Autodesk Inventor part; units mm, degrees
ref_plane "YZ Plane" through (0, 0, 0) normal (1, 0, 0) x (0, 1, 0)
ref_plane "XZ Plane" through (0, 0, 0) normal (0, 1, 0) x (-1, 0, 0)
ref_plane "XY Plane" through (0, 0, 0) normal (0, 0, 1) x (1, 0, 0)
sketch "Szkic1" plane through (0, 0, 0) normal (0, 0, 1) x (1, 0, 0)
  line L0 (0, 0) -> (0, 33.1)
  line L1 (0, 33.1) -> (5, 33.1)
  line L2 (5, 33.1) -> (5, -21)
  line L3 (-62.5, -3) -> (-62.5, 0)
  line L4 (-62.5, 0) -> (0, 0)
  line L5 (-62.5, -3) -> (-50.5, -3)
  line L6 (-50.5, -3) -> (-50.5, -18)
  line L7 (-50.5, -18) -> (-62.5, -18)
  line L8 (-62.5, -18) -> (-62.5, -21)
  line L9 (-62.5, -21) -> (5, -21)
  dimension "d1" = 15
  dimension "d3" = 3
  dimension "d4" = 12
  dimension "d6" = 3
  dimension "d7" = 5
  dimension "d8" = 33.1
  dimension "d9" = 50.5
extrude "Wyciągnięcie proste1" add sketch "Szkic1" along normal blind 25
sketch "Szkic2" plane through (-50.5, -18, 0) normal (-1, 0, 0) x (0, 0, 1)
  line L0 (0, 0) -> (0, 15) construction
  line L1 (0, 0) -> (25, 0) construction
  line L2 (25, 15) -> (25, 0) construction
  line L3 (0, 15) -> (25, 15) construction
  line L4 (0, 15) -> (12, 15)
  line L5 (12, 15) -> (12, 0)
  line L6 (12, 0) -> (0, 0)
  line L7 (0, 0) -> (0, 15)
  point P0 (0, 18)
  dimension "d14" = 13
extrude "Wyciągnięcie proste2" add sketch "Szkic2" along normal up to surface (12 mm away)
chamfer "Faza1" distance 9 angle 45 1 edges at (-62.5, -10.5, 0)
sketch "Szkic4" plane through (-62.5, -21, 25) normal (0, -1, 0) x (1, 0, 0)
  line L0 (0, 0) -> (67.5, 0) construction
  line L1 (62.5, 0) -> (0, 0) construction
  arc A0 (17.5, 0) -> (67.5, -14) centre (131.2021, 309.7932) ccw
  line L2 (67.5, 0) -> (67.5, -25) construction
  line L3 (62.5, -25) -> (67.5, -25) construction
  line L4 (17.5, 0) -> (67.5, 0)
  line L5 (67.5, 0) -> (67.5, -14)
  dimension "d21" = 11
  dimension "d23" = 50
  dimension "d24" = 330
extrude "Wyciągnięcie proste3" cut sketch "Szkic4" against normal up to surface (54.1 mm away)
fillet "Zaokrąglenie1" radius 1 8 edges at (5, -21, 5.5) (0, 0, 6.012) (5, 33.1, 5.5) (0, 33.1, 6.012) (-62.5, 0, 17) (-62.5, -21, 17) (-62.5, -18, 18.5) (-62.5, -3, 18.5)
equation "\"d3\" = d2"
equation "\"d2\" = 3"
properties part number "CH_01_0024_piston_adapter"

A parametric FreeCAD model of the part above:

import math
import FreeCAD as App
import Part
import Sketcher
from FreeCAD import Vector


def edges_at(feature, points):
    """Names of the edges that pass closest to the given points."""
    edges = feature.Shape.Edges
    near = lambda p: min(range(len(edges)), key=lambda i: edges[i].distToShape(Part.Vertex(*p))[0])
    return sorted({f"Edge{near(p) + 1}" for p in points})


def add_polygon(sketch, points):
    """Adds a closed chain of lines whose ends are joined by coincident constraints."""
    first, n = sketch.GeometryCount, len(points)
    for a, b in zip(points, points[1:] + points[:1]):
        sketch.addGeometry(Part.LineSegment(App.Vector(*a, 0), App.Vector(*b, 0)), False)
    for i in range(n):
        sketch.addConstraint(Sketcher.Constraint("Coincident", first + i, 2, first + (i + 1) % n, 1))

doc = App.newDocument("Part")
params = doc.addObject("Spreadsheet::Sheet", "Params")
for row, (alias, value) in enumerate([
    ("sketch1_width", "12 mm"),
    ("sketch1_width2", "5 mm"),
    ("sketch1_height", "3 mm"),
    ("sketch1_height2", "15 mm"),
    ("sketch1_height3", "33.1 mm"),
    ("pad1_length", "25 mm"),
    ("sketch2_width", "15 mm"),
    ("sketch2_height", "12 mm"),
    ("pad2_length", "12 mm"),
    ("chamfer_size", "9 mm"),
    ("sketch3_radius", "330 mm"),
    ("sketch3_width", "50 mm"),
    ("sketch3_height", "14 mm"),
    ("pocket1_length", "54.1 mm"),
    ("fillet_radius", "1 mm"),
], start=1):
    params.set(f"A{row}", alias)
    params.set(f"B{row}", "=" + value)
    params.setAlias(f"B{row}", alias)

body = doc.addObject("PartDesign::Body", "Body")

# Sketch on XY plane
sketch1 = body.newObject("Sketcher::SketchObject", "Sketch")
sketch1.AttachmentSupport = (doc.getObject("XY_Plane"), [""])
sketch1.MapMode = "FlatFace"
add_polygon(sketch1, [(0, 33.1), (0, 0), (-62.5, 0), (-62.5, -3), (-50.5, -3), (-50.5, -18), (-62.5, -18), (-62.5, -21), (5, -21), (5, 33.1)])  # lines 0-9
sketch1.addConstraint([
    Sketcher.Constraint("Vertical", 0),
    Sketcher.Constraint("Horizontal", 1),
    Sketcher.Constraint("Vertical", 2),
    Sketcher.Constraint("Horizontal", 3),
    Sketcher.Constraint("Vertical", 4),
    Sketcher.Constraint("Horizontal", 5),
    Sketcher.Constraint("Vertical", 6),
    Sketcher.Constraint("Horizontal", 7),
    Sketcher.Constraint("Vertical", 8),
    Sketcher.Constraint("Horizontal", 9),
    Sketcher.Constraint("Coincident", 0, 2, -1, 1),
    Sketcher.Constraint("Vertical", 2, 2, 5, 2),
    Sketcher.Constraint("Equal", 2, 6),
    Sketcher.Constraint("DistanceX", 3, 1, 3, 2, 12.0),
    Sketcher.Constraint("DistanceX", 9, 2, 9, 1, 5.0),
    Sketcher.Constraint("DistanceY", 2, 2, 2, 1, 3.0),
    Sketcher.Constraint("DistanceY", 4, 2, 4, 1, 15.0),
    Sketcher.Constraint("DistanceY", 0, 2, 0, 1, 33.1),
    Sketcher.Constraint("DistanceX", 3, 2, -1, 1, 50.5),
])
sketch1.setExpression("Constraints[23]", "Params.sketch1_width")
sketch1.setExpression("Constraints[24]", "Params.sketch1_width2")
sketch1.setExpression("Constraints[25]", "Params.sketch1_height")
sketch1.setExpression("Constraints[26]", "Params.sketch1_height2")
sketch1.setExpression("Constraints[27]", "Params.sketch1_height3")
pad1 = body.newObject("PartDesign::Pad", "Pad")
pad1.Profile = sketch1
pad1.setExpression("Length", "Params.pad1_length")

# Sketch on YZ plane
sketch2 = body.newObject("Sketcher::SketchObject", "Sketch001")
sketch2.AttachmentSupport = (doc.getObject("YZ_Plane"), [""])
sketch2.MapMode = "FlatFace"
sketch2.AttachmentOffset = App.Placement(Vector(0, 0, -50.5), App.Rotation())
add_polygon(sketch2, [(-3, 12), (-3, 0), (-18, 0), (-18, 12)])  # lines 0-3
sketch2.addConstraint([
    Sketcher.Constraint("Vertical", 0),
    Sketcher.Constraint("Horizontal", 1),
    Sketcher.Constraint("Vertical", 2),
    Sketcher.Constraint("Horizontal", 3),
    Sketcher.Constraint("PointOnObject", 0, 2, -1),
    Sketcher.Constraint("DistanceX", 1, 2, 1, 1, 15.0),
    Sketcher.Constraint("DistanceY", 0, 2, 0, 1, 12.0),
    Sketcher.Constraint("DistanceX", 0, 2, -1, 1, 3.0),
])
sketch2.setExpression("Constraints[9]", "Params.sketch2_width")
sketch2.setExpression("Constraints[10]", "Params.sketch2_height")
pad2 = body.newObject("PartDesign::Pad", "Pad001")
pad2.Profile = sketch2
pad2.setExpression("Length", "Params.pad2_length")
pad2.Reversed = True
doc.recompute()

chamfer = body.newObject("PartDesign::Chamfer", "Chamfer")
chamfer.Base = (pad2, edges_at(pad2, [(-62.5, -10.5, 0)]))
chamfer.setExpression("Size", "Params.chamfer_size")

# Sketch on XZ plane
sketch3 = body.newObject("Sketcher::SketchObject", "Sketch002")
sketch3.AttachmentSupport = (doc.getObject("XZ_Plane"), [""])
sketch3.MapMode = "FlatFace"
sketch3.AttachmentOffset = App.Placement(Vector(0, 0, 21), App.Rotation())
sketch3.addGeometry([
    Part.LineSegment(Vector(5, 25, 0), Vector(-45, 25, 0)),
    Part.ArcOfCircle(Part.Circle(Vector(69, 335, 0), Vector(0, 0, 1), 330), math.radians(-110.15), math.radians(-101.13)),
    Part.LineSegment(Vector(5, 11, 0), Vector(5, 25, 0)),
], False)
sketch3.addConstraint([
    Sketcher.Constraint("Coincident", 0, 2, 1, 1),
    Sketcher.Constraint("Coincident", 1, 2, 2, 1),
    Sketcher.Constraint("Coincident", 2, 2, 0, 1),
    Sketcher.Constraint("Horizontal", 0),
    Sketcher.Constraint("Vertical", 2),
    Sketcher.Constraint("Radius", 1, 330.0),
    Sketcher.Constraint("DistanceX", 0, 2, 0, 1, 50.0),
    Sketcher.Constraint("DistanceY", -1, 1, 1, 2, 11.0),
    Sketcher.Constraint("DistanceY", 2, 1, 2, 2, 14.0),
    Sketcher.Constraint("DistanceX", 0, 2, -1, 1, 45.0),
])
sketch3.setExpression("Constraints[5]", "Params.sketch3_radius")
sketch3.setExpression("Constraints[6]", "Params.sketch3_width")
sketch3.setExpression("Constraints[8]", "Params.sketch3_height")
pocket1 = body.newObject("PartDesign::Pocket", "Pocket")
pocket1.Profile = sketch3
pocket1.setExpression("Length", "Params.pocket1_length")
doc.recompute()

fillet = body.newObject("PartDesign::Fillet", "Fillet")
fillet.Base = (pocket1, edges_at(pocket1, [
    (5, -21, 5.5),
    (0, 0, 6.012),
    (5, 33.1, 5.5),
    (0, 33.1, 6.012),
    (-62.5, 0, 17),
    (-62.5, -21, 17),
    (-62.5, -18, 18.5),
    (-62.5, -3, 18.5),
]))
fillet.setExpression("Radius", "Params.fillet_radius")

doc.recompute()
